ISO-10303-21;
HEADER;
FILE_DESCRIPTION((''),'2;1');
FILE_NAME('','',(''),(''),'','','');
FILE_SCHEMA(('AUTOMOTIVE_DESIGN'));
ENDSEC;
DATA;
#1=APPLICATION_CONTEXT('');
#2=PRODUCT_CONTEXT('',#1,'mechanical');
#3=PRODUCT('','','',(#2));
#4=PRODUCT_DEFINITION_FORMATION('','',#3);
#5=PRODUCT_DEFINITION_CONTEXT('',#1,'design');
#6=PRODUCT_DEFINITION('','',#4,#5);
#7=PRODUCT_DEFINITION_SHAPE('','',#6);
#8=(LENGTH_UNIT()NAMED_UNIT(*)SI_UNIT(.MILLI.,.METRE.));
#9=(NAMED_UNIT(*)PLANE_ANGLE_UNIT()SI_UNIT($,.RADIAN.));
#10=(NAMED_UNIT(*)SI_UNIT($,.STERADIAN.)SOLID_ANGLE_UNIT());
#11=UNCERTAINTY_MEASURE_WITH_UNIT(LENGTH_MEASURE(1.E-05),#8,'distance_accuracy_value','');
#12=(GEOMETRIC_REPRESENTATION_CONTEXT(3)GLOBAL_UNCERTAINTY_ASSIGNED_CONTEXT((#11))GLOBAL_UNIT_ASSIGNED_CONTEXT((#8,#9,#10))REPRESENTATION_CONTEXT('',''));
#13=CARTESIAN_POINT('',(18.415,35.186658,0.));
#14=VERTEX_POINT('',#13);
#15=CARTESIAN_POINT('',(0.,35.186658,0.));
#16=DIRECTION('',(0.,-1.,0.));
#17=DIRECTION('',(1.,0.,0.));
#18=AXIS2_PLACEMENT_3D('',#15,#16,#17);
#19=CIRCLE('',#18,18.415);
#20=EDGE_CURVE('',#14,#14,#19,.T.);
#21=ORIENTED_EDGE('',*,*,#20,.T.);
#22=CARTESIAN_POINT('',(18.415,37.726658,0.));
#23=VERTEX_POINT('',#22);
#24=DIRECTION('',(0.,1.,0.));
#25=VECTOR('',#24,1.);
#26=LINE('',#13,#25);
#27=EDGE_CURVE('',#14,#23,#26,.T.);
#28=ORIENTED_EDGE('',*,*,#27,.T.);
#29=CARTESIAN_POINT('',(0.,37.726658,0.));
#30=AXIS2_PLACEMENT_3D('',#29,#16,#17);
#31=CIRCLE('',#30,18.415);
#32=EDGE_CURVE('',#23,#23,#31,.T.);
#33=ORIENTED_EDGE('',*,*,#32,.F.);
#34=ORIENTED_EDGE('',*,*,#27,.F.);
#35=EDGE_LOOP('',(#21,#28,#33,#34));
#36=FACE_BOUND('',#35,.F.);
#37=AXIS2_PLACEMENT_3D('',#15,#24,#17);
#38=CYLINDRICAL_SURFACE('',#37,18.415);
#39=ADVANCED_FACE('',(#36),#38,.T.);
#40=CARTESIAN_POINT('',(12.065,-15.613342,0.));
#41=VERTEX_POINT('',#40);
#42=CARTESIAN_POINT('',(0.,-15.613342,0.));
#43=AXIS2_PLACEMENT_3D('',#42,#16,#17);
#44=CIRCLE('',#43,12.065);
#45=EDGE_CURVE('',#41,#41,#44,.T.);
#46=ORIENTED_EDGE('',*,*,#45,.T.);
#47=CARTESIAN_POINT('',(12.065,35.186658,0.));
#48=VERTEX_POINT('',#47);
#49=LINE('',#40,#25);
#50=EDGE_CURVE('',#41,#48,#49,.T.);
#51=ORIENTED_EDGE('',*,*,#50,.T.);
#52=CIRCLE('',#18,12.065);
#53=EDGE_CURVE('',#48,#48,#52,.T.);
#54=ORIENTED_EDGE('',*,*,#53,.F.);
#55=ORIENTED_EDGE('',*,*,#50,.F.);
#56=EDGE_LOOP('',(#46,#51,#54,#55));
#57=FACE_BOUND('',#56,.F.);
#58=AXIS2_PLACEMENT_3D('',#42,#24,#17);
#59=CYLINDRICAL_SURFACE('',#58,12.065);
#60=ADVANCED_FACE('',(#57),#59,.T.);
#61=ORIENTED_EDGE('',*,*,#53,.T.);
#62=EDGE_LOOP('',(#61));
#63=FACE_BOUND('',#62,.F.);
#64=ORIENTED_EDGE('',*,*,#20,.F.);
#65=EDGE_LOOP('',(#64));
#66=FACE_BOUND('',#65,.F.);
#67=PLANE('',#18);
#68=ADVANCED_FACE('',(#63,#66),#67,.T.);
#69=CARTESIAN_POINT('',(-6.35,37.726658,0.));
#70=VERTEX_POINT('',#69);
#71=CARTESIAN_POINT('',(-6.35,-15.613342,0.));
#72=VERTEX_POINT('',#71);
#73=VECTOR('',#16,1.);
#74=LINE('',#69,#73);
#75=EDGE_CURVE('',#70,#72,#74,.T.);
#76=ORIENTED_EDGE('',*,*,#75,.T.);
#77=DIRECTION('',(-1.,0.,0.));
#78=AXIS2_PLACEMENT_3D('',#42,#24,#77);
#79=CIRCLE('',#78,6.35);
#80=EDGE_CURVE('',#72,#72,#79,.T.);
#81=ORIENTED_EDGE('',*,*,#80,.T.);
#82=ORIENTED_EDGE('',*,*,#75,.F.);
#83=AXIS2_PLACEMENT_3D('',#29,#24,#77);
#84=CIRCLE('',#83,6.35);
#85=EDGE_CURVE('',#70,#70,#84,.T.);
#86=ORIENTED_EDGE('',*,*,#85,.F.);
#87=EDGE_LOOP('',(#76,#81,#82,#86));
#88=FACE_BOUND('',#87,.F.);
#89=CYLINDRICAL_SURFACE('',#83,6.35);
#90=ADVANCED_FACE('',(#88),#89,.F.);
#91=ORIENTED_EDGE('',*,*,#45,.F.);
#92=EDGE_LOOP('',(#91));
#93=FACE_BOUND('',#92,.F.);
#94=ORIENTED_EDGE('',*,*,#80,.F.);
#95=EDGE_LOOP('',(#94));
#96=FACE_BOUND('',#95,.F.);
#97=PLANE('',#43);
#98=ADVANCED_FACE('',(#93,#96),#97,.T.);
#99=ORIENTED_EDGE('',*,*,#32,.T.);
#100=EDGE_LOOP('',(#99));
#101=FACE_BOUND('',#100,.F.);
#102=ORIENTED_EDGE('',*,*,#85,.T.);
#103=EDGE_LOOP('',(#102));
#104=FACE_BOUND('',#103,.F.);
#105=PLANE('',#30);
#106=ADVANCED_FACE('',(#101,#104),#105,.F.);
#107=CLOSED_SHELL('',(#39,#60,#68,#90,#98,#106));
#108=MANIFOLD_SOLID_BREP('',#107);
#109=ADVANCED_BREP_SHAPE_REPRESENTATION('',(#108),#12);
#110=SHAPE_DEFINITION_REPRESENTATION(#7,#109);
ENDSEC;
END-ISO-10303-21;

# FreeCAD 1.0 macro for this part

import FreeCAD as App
import Part
import Sketcher
Q = App.Units.Quantity

doc = App.newDocument("Part")
body = doc.addObject("PartDesign::Body", "Body")

# Sketch on XY plane
sketch1 = body.newObject("Sketcher::SketchObject", "Sketch")
sketch1.AttachmentSupport = (doc.getObject("XY_Plane"), [""])
sketch1.MapMode = "FlatFace"
sketch1.addGeometry(Part.LineSegment(App.Vector(0, 37.7, 0), App.Vector(0, -15.6, 0)), False)
sketch1.addGeometry(Part.LineSegment(App.Vector(0, -15.6, 0), App.Vector(12.1, -15.6, 0)), False)
sketch1.addGeometry(Part.LineSegment(App.Vector(12.1, -15.6, 0), App.Vector(12.1, 35.2, 0)), False)
sketch1.addGeometry(Part.LineSegment(App.Vector(12.1, 35.2, 0), App.Vector(18.4, 35.2, 0)), False)
sketch1.addGeometry(Part.LineSegment(App.Vector(18.4, 35.2, 0), App.Vector(18.4, 37.7, 0)), False)
sketch1.addGeometry(Part.LineSegment(App.Vector(18.4, 37.7, 0), App.Vector(0, 37.7, 0)), False)
sketch1.addConstraint(Sketcher.Constraint("Coincident", 0, 2, 1, 1))
sketch1.addConstraint(Sketcher.Constraint("Coincident", 1, 2, 2, 1))
sketch1.addConstraint(Sketcher.Constraint("Coincident", 2, 2, 3, 1))
sketch1.addConstraint(Sketcher.Constraint("Coincident", 3, 2, 4, 1))
sketch1.addConstraint(Sketcher.Constraint("Coincident", 4, 2, 5, 1))
sketch1.addConstraint(Sketcher.Constraint("Coincident", 5, 2, 0, 1))
sketch1.addConstraint(Sketcher.Constraint("Vertical", 0))
sketch1.addConstraint(Sketcher.Constraint("Horizontal", 1))
sketch1.addConstraint(Sketcher.Constraint("Vertical", 2))
sketch1.addConstraint(Sketcher.Constraint("Horizontal", 3))
sketch1.addConstraint(Sketcher.Constraint("Vertical", 4))
sketch1.addConstraint(Sketcher.Constraint("Horizontal", 5))
sketch1.addConstraint(Sketcher.Constraint("PointOnObject", 0, 2, -2))
sketch1.addConstraint(Sketcher.Constraint("DistanceY", 2, 1, 2, 2, Q("2 in")))
sketch1.addConstraint(Sketcher.Constraint("DistanceY", 0, 2, 0, 1, Q("2.1 in")))
sketch1.addConstraint(Sketcher.Constraint("DistanceX", 3, 1, 3, 2, Q("0.25 in")))
sketch1.addConstraint(Sketcher.Constraint("DistanceX", 1, 1, 1, 2, Q("0.475 in")))
sketch1.addConstraint(Sketcher.Constraint("DistanceY", 0, 2, -1, 1, Q("15.613342 mm")))
revolution = body.newObject("PartDesign::Revolution", "Revolution")
revolution.Profile = sketch1
revolution.ReferenceAxis = (sketch1, ["V_Axis"])
revolution.Angle = 360

# Sketch on XZ plane
sketch2 = body.newObject("Sketcher::SketchObject", "Sketch001")
sketch2.AttachmentSupport = (doc.getObject("XZ_Plane"), [""])
sketch2.MapMode = "FlatFace"
sketch2.AttachmentOffset = App.Placement(App.Vector(0, 0, -37.726658), App.Rotation())
sketch2.addGeometry(Part.Circle(App.Vector(0, 0, 0), App.Vector(0, 0, 1), 6), False)
sketch2.addConstraint(Sketcher.Constraint("Coincident", 0, 3, -1, 1))
sketch2.addConstraint(Sketcher.Constraint("Diameter", 0, Q("0.5 in")))
pocket1 = body.newObject("PartDesign::Pocket", "Pocket")
pocket1.Profile = sketch2
pocket1.Length = Q("4 in")
pocket1.Reversed = True

doc.recompute()
